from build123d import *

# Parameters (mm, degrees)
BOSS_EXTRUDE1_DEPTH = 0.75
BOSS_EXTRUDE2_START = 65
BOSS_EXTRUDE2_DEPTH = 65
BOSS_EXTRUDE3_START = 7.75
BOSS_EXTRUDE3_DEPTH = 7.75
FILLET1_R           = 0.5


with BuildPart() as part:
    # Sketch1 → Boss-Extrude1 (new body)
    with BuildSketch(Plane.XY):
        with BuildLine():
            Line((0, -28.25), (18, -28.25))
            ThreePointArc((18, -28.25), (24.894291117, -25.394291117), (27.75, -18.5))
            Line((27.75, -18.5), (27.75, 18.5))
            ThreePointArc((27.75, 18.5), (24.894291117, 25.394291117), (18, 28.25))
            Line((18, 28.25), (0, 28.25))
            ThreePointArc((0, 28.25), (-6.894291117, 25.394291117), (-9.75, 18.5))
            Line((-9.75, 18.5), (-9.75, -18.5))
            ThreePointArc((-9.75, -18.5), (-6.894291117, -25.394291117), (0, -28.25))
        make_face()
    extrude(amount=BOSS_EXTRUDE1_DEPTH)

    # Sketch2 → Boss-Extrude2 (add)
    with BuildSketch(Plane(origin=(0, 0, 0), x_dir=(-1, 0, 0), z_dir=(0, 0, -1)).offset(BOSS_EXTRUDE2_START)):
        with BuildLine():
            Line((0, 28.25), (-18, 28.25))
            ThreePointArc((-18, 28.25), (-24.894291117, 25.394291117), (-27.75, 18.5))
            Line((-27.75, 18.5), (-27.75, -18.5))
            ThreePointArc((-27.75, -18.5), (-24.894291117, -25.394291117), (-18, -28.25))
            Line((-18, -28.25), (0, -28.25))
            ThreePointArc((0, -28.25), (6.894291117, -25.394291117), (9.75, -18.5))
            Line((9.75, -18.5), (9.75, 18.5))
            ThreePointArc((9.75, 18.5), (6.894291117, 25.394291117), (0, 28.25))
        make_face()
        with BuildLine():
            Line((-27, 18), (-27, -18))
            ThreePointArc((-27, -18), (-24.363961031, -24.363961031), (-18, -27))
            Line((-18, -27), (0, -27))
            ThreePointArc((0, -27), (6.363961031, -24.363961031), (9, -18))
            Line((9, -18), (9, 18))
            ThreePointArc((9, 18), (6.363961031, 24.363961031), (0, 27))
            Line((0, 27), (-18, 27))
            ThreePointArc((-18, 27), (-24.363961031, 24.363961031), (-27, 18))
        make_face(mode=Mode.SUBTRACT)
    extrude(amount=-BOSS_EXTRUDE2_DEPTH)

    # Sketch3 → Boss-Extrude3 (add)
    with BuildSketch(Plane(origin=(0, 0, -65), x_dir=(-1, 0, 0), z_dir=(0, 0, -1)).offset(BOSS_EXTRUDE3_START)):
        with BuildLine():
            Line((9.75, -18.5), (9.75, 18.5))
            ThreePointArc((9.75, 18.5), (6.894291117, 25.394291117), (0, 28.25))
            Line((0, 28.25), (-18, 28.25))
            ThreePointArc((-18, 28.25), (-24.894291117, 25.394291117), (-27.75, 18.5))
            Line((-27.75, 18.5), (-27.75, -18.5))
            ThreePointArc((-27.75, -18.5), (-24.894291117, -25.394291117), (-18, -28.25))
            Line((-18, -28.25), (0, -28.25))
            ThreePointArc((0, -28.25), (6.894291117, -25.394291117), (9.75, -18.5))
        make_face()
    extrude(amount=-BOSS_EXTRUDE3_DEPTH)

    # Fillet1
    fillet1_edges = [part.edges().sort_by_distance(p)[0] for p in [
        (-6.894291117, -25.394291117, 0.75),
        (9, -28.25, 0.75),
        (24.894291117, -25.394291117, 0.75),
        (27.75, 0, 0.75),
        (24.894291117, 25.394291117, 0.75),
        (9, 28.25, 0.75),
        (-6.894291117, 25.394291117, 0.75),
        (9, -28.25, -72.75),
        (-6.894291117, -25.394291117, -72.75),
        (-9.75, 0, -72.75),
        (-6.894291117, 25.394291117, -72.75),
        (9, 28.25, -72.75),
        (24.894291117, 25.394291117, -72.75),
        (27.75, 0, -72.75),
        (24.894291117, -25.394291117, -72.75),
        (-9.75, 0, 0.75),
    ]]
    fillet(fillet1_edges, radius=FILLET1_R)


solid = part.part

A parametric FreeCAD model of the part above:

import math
import FreeCAD as App
import Part
import Sketcher
from FreeCAD import Vector
Q = App.Units.Quantity


def edges_at(feature, points):
    """Names of the edges that pass closest to the given points."""
    edges = feature.Shape.Edges
    near = lambda p: min(range(len(edges)), key=lambda i: edges[i].distToShape(Part.Vertex(*p))[0])
    return sorted({f"Edge{near(p) + 1}" for p in points})

doc = App.newDocument("Part")
body = doc.addObject("PartDesign::Body", "Body")

# Sketch on XY plane
sketch1 = body.newObject("Sketcher::SketchObject", "Sketch")
sketch1.AttachmentSupport = (doc.getObject("XY_Plane"), [""])
sketch1.MapMode = "FlatFace"
sketch1.addGeometry([
    Part.LineSegment(Vector(0, -28, 0), Vector(18, -28, 0)),  # 0
    Part.ArcOfCircle(Part.Circle(Vector(18, -19, 0), Vector(0, 0, 1), 10), math.radians(-90), math.radians(0)),  # 1
    Part.LineSegment(Vector(28, -18, 0), Vector(28, 18, 0)),  # 2
    Part.ArcOfCircle(Part.Circle(Vector(18, 19, 0), Vector(0, 0, 1), 10), math.radians(0), math.radians(90)),  # 3
    Part.LineSegment(Vector(18, 28, 0), Vector(0, 28, 0)),  # 4
    Part.ArcOfCircle(Part.Circle(Vector(0, 19, 0), Vector(0, 0, 1), 10), math.radians(90), math.radians(180)),  # 5
    Part.LineSegment(Vector(-10, 18, 0), Vector(-10, -18, 0)),  # 6
    Part.ArcOfCircle(Part.Circle(Vector(0, -19, 0), Vector(0, 0, 1), 10), math.radians(180), math.radians(270)),  # 7
], False)
sketch1.addConstraint([
    Sketcher.Constraint("Tangent", 0, 2, 1, 1),
    Sketcher.Constraint("Tangent", 1, 2, 2, 1),
    Sketcher.Constraint("Tangent", 2, 2, 3, 1),
    Sketcher.Constraint("Tangent", 3, 2, 4, 1),
    Sketcher.Constraint("Tangent", 4, 2, 5, 1),
    Sketcher.Constraint("Tangent", 5, 2, 6, 1),
    Sketcher.Constraint("Tangent", 6, 2, 7, 1),
    Sketcher.Constraint("Tangent", 7, 2, 0, 1),
    Sketcher.Constraint("Horizontal", 0),
    Sketcher.Constraint("Vertical", 2),
    Sketcher.Constraint("Horizontal", 4),
    Sketcher.Constraint("Vertical", 6),
    Sketcher.Constraint("Equal", 1, 3),
    Sketcher.Constraint("Equal", 3, 5),
    Sketcher.Constraint("Equal", 5, 7),
    Sketcher.Constraint("Symmetric", 5, 3, 7, 3, -1, 1),
    Sketcher.Constraint("DistanceX", 0, 1, 0, 2, Q("18 mm")),
    Sketcher.Constraint("DistanceY", 2, 1, 2, 2, Q("37 mm")),
    Sketcher.Constraint("Radius", 1, Q("9.75 mm")),
])
pad1 = body.newObject("PartDesign::Pad", "Pad")
pad1.Profile = sketch1
pad1.Length = 0.75

# Sketch on XY plane
sketch2 = body.newObject("Sketcher::SketchObject", "Sketch001")
sketch2.AttachmentSupport = (doc.getObject("XY_Plane"), [""])
sketch2.MapMode = "FlatFace"
sketch2.AttachmentOffset = App.Placement(Vector(0, 0, -65), App.Rotation())
sketch2.addGeometry([
    Part.LineSegment(Vector(0, 28, 0), Vector(18, 28, 0)),  # 0
    Part.ArcOfCircle(Part.Circle(Vector(18, 19, 0), Vector(0, 0, 1), 10), math.radians(0), math.radians(90)),  # 1
    Part.LineSegment(Vector(28, 18, 0), Vector(28, -18, 0)),  # 2
    Part.ArcOfCircle(Part.Circle(Vector(18, -19, 0), Vector(0, 0, 1), 10), math.radians(-90), math.radians(0)),  # 3
    Part.LineSegment(Vector(18, -28, 0), Vector(0, -28, 0)),  # 4
    Part.ArcOfCircle(Part.Circle(Vector(0, -19, 0), Vector(0, 0, 1), 10), math.radians(180), math.radians(270)),  # 5
    Part.LineSegment(Vector(-10, -18, 0), Vector(-10, 18, 0)),  # 6
    Part.ArcOfCircle(Part.Circle(Vector(0, 19, 0), Vector(0, 0, 1), 10), math.radians(90), math.radians(180)),  # 7
    Part.LineSegment(Vector(27, -18, 0), Vector(27, 18, 0)),  # 8
    Part.ArcOfCircle(Part.Circle(Vector(18, 18, 0), Vector(0, 0, 1), 9), math.radians(0), math.radians(90)),  # 9
    Part.LineSegment(Vector(18, 27, 0), Vector(0, 27, 0)),  # 10
    Part.ArcOfCircle(Part.Circle(Vector(0, 18, 0), Vector(0, 0, 1), 9), math.radians(90), math.radians(180)),  # 11
    Part.LineSegment(Vector(-9, 18, 0), Vector(-9, -18, 0)),  # 12
    Part.ArcOfCircle(Part.Circle(Vector(0, -18, 0), Vector(0, 0, 1), 9), math.radians(180), math.radians(270)),  # 13
    Part.LineSegment(Vector(0, -27, 0), Vector(18, -27, 0)),  # 14
    Part.ArcOfCircle(Part.Circle(Vector(18, -18, 0), Vector(0, 0, 1), 9), math.radians(-90), math.radians(0)),  # 15
], False)
sketch2.addConstraint([
    Sketcher.Constraint("Tangent", 0, 2, 1, 2),
    Sketcher.Constraint("Tangent", 1, 1, 2, 1),
    Sketcher.Constraint("Tangent", 2, 2, 3, 2),
    Sketcher.Constraint("Tangent", 3, 1, 4, 1),
    Sketcher.Constraint("Tangent", 4, 2, 5, 2),
    Sketcher.Constraint("Tangent", 5, 1, 6, 1),
    Sketcher.Constraint("Tangent", 6, 2, 7, 2),
    Sketcher.Constraint("Tangent", 7, 1, 0, 1),
    Sketcher.Constraint("Tangent", 8, 2, 9, 1),
    Sketcher.Constraint("Tangent", 9, 2, 10, 1),
    Sketcher.Constraint("Tangent", 10, 2, 11, 1),
    Sketcher.Constraint("Tangent", 11, 2, 12, 1),
    Sketcher.Constraint("Tangent", 12, 2, 13, 1),
    Sketcher.Constraint("Tangent", 13, 2, 14, 1),
    Sketcher.Constraint("Tangent", 14, 2, 15, 1),
    Sketcher.Constraint("Tangent", 15, 2, 8, 1),
    Sketcher.Constraint("Horizontal", 0),
    Sketcher.Constraint("Vertical", 2),
    Sketcher.Constraint("Horizontal", 4),
    Sketcher.Constraint("Vertical", 6),
    Sketcher.Constraint("Vertical", 8),
    Sketcher.Constraint("Horizontal", 10),
    Sketcher.Constraint("Vertical", 12),
    Sketcher.Constraint("Horizontal", 14),
    Sketcher.Constraint("Equal", 1, 3),
    Sketcher.Constraint("Equal", 3, 5),
    Sketcher.Constraint("Equal", 5, 7),
    Sketcher.Constraint("Equal", 9, 11),
    Sketcher.Constraint("Equal", 11, 13),
    Sketcher.Constraint("Equal", 13, 15),
    Sketcher.Constraint("Symmetric", 5, 3, 7, 3, -1, 1),
    Sketcher.Constraint("Symmetric", 11, 3, 13, 3, -1, 1),
    Sketcher.Constraint("Vertical", 3, 3, 9, 3),
    Sketcher.Constraint("Radius", 9, Q("9 mm")),
    Sketcher.Constraint("DistanceX", 0, 1, 0, 2, Q("18 mm")),
    Sketcher.Constraint("DistanceY", 2, 2, 2, 1, Q("37 mm")),
    Sketcher.Constraint("DistanceY", 8, 1, 8, 2, Q("36 mm")),
    Sketcher.Constraint("Radius", 1, Q("9.75 mm")),
])
pad2 = body.newObject("PartDesign::Pad", "Pad001")
pad2.Profile = sketch2
pad2.Length = 65

# Sketch on XY plane
sketch3 = body.newObject("Sketcher::SketchObject", "Sketch002")
sketch3.AttachmentSupport = (doc.getObject("XY_Plane"), [""])
sketch3.MapMode = "FlatFace"
sketch3.AttachmentOffset = App.Placement(Vector(0, 0, -72.75), App.Rotation())
sketch3.addGeometry([
    Part.LineSegment(Vector(-10, -18, 0), Vector(-10, 18, 0)),  # 0
    Part.ArcOfCircle(Part.Circle(Vector(0, 19, 0), Vector(0, 0, 1), 10), math.radians(90), math.radians(180)),  # 1
    Part.LineSegment(Vector(0, 28, 0), Vector(18, 28, 0)),  # 2
    Part.ArcOfCircle(Part.Circle(Vector(18, 19, 0), Vector(0, 0, 1), 10), math.radians(0), math.radians(90)),  # 3
    Part.LineSegment(Vector(28, 18, 0), Vector(28, -18, 0)),  # 4
    Part.ArcOfCircle(Part.Circle(Vector(18, -19, 0), Vector(0, 0, 1), 10), math.radians(-90), math.radians(0)),  # 5
    Part.LineSegment(Vector(18, -28, 0), Vector(0, -28, 0)),  # 6
    Part.ArcOfCircle(Part.Circle(Vector(0, -19, 0), Vector(0, 0, 1), 10), math.radians(180), math.radians(270)),  # 7
], False)
sketch3.addConstraint([
    Sketcher.Constraint("Tangent", 0, 2, 1, 2),
    Sketcher.Constraint("Tangent", 1, 1, 2, 1),
    Sketcher.Constraint("Tangent", 2, 2, 3, 2),
    Sketcher.Constraint("Tangent", 3, 1, 4, 1),
    Sketcher.Constraint("Tangent", 4, 2, 5, 2),
    Sketcher.Constraint("Tangent", 5, 1, 6, 1),
    Sketcher.Constraint("Tangent", 6, 2, 7, 2),
    Sketcher.Constraint("Tangent", 7, 1, 0, 1),
    Sketcher.Constraint("Vertical", 0),
    Sketcher.Constraint("Horizontal", 2),
    Sketcher.Constraint("Vertical", 4),
    Sketcher.Constraint("Horizontal", 6),
    Sketcher.Constraint("Equal", 1, 3),
    Sketcher.Constraint("Equal", 3, 5),
    Sketcher.Constraint("Equal", 5, 7),
    Sketcher.Constraint("Symmetric", 1, 3, 7, 3, -1, 1),
    Sketcher.Constraint("DistanceX", 2, 1, 2, 2, Q("18 mm")),
    Sketcher.Constraint("DistanceY", 0, 1, 0, 2, Q("37 mm")),
    Sketcher.Constraint("Radius", 1, Q("9.75 mm")),
])
pad3 = body.newObject("PartDesign::Pad", "Pad002")
pad3.Profile = sketch3
pad3.Length = 7.75
doc.recompute()

fillet = body.newObject("PartDesign::Fillet", "Fillet")
fillet.Base = (pad3, edges_at(pad3, [
    (-6.894, -25.394, 0.75),
    (9, -28.25, 0.75),
    (24.894, -25.394, 0.75),
    (27.75, 0, 0.75),
    (24.894, 25.394, 0.75),
    (9, 28.25, 0.75),
    (-6.894, 25.394, 0.75),
    (9, -28.25, -72.75),
    (-6.894, -25.394, -72.75),
    (-9.75, 0, -72.75),
    (-6.894, 25.394, -72.75),
    (9, 28.25, -72.75),
    (24.894, 25.394, -72.75),
    (27.75, 0, -72.75),
    (24.894, -25.394, -72.75),
    (-9.75, 0, 0.75),
]))
fillet.Radius = 0.5

doc.recompute()
